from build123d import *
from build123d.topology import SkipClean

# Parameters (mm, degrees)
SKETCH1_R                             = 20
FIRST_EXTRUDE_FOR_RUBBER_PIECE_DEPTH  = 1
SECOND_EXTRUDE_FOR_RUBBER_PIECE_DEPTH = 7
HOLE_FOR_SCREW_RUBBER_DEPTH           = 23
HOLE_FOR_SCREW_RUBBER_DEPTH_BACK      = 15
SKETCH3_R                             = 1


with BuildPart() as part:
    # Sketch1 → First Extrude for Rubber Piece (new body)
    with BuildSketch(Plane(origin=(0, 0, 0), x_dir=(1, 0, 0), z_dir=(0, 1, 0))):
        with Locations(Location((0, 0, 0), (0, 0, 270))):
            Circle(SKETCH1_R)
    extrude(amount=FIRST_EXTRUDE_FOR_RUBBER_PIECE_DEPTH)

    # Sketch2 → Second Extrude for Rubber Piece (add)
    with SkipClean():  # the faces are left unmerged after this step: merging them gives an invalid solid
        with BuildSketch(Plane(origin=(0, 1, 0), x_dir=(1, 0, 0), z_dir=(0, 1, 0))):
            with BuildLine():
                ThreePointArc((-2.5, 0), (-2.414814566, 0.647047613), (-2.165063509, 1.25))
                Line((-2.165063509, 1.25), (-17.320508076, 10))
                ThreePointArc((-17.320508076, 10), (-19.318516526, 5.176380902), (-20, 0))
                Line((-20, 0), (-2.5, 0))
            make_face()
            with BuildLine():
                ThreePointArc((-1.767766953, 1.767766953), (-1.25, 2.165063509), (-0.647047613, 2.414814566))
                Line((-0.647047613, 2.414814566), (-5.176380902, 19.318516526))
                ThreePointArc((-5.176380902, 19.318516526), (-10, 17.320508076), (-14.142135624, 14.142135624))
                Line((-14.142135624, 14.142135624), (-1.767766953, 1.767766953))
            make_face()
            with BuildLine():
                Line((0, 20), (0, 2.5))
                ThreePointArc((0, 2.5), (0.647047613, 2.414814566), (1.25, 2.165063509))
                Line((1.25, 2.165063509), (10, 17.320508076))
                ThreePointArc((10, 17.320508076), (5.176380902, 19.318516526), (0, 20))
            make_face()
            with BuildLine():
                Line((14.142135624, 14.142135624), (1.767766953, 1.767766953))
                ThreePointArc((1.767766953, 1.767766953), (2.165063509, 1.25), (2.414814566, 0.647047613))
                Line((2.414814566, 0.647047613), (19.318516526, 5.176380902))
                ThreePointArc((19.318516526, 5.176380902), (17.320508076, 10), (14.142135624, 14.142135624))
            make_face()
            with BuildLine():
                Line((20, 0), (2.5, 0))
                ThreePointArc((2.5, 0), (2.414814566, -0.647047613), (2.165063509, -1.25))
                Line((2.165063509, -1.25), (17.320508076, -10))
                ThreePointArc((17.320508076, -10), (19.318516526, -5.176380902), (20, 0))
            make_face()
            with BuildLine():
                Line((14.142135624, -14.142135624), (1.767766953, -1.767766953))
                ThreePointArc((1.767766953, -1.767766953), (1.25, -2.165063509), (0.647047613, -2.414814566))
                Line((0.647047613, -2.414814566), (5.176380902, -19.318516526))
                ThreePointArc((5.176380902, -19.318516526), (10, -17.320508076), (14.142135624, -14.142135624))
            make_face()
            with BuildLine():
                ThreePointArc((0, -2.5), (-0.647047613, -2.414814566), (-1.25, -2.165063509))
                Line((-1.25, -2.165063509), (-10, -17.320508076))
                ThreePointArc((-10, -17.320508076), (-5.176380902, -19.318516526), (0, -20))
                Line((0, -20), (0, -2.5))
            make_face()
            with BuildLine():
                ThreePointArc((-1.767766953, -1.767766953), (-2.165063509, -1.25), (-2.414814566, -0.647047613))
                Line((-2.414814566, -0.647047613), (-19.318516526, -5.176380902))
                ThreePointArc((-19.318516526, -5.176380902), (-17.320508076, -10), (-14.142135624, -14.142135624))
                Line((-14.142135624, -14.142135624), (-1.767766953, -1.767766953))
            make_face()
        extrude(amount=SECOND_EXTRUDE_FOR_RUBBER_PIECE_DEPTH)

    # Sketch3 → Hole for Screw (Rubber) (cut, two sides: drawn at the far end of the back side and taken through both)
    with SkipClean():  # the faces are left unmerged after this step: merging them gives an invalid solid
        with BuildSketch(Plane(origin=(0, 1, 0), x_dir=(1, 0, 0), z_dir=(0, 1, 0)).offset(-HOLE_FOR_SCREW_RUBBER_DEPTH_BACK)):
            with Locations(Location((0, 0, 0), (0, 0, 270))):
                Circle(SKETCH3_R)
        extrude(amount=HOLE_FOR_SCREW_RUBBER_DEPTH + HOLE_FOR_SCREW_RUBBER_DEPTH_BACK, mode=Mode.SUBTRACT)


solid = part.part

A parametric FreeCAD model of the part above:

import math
import FreeCAD as App
import Part
import Sketcher
from FreeCAD import Vector
Q = App.Units.Quantity

doc = App.newDocument("Part")
body = doc.addObject("PartDesign::Body", "Body")

sketch1 = body.newObject("Sketcher::SketchObject", "Sketch")
sketch1.AttachmentSupport = (doc.getObject("XZ_Plane"), [""])
sketch1.MapMode = "FlatFace"
sketch1.addGeometry(Part.Circle(Vector(0, 0, 0), Vector(0, 0, 1), 20), False)
sketch1.addConstraint(Sketcher.Constraint("Coincident", 0, 3, -1, 1))
sketch1.addConstraint(Sketcher.Constraint("Diameter", 0, 40.0))
pad1 = body.newObject("PartDesign::Pad", "Pad")
pad1.Profile = sketch1
pad1.Length = 1
pad1.Reversed = True

sketch2 = body.newObject("Sketcher::SketchObject", "Sketch001")
sketch2.AttachmentSupport = (doc.getObject("XZ_Plane"), [""])
sketch2.MapMode = "FlatFace"
sketch2.AttachmentOffset = App.Placement(Vector(0, 0, -1), App.Rotation())
sketch2.addGeometry(Part.ArcOfCircle(Part.Circle(Vector(0, 0, 0), Vector(0, 0, 1), 2.5), math.radians(180), math.radians(210)), False)
sketch2.addGeometry(Part.LineSegment(Vector(-2.2, -1.2, 0), Vector(-17.3, -10, 0)), False)
sketch2.addGeometry(Part.ArcOfCircle(Part.Circle(Vector(0, 0, 0), Vector(0, 0, 1), 20), math.radians(180), math.radians(210)), False)
sketch2.addGeometry(Part.LineSegment(Vector(-20, 0, 0), Vector(-2.5, 0, 0)), False)
sketch2.addGeometry(Part.ArcOfCircle(Part.Circle(Vector(0, 0, 0), Vector(0, 0, 1), 2.5), math.radians(-135), math.radians(-105)), False)
sketch2.addGeometry(Part.LineSegment(Vector(-0.6, -2.4, 0), Vector(-5.2, -19.3, 0)), False)
sketch2.addGeometry(Part.ArcOfCircle(Part.Circle(Vector(0, 0, 0), Vector(0, 0, 1), 20), math.radians(-135), math.radians(-105)), False)
sketch2.addGeometry(Part.LineSegment(Vector(-14.1, -14.1, 0), Vector(-1.8, -1.8, 0)), False)
sketch2.addGeometry(Part.LineSegment(Vector(0, -20, 0), Vector(0, -2.5, 0)), False)
sketch2.addGeometry(Part.ArcOfCircle(Part.Circle(Vector(0, 0, 0), Vector(0, 0, 1), 2.5), math.radians(-90), math.radians(-60)), False)
sketch2.addGeometry(Part.LineSegment(Vector(1.2, -2.2, 0), Vector(10, -17.3, 0)), False)
sketch2.addGeometry(Part.ArcOfCircle(Part.Circle(Vector(0, 0, 0), Vector(0, 0, 1), 20), math.radians(-90), math.radians(-60)), False)
sketch2.addGeometry(Part.LineSegment(Vector(14.1, -14.1, 0), Vector(1.8, -1.8, 0)), False)
sketch2.addGeometry(Part.ArcOfCircle(Part.Circle(Vector(0, 0, 0), Vector(0, 0, 1), 2.5), math.radians(-45), math.radians(-15)), False)
sketch2.addGeometry(Part.LineSegment(Vector(2.4, -0.6, 0), Vector(19.3, -5.2, 0)), False)
sketch2.addGeometry(Part.ArcOfCircle(Part.Circle(Vector(0, 0, 0), Vector(0, 0, 1), 20), math.radians(-45), math.radians(-15)), False)
sketch2.addGeometry(Part.LineSegment(Vector(20, 0, 0), Vector(2.5, 0, 0)), False)
sketch2.addGeometry(Part.ArcOfCircle(Part.Circle(Vector(0, 0, 0), Vector(0, 0, 1), 2.5), math.radians(0), math.radians(30)), False)
sketch2.addGeometry(Part.LineSegment(Vector(2.2, 1.2, 0), Vector(17.3, 10, 0)), False)
sketch2.addGeometry(Part.ArcOfCircle(Part.Circle(Vector(0, 0, 0), Vector(0, 0, 1), 20), math.radians(0), math.radians(30)), False)
sketch2.addGeometry(Part.LineSegment(Vector(14.1, 14.1, 0), Vector(1.8, 1.8, 0)), False)
sketch2.addGeometry(Part.ArcOfCircle(Part.Circle(Vector(0, 0, 0), Vector(0, 0, 1), 2.5), math.radians(45), math.radians(75)), False)
sketch2.addGeometry(Part.LineSegment(Vector(0.6, 2.4, 0), Vector(5.2, 19.3, 0)), False)
sketch2.addGeometry(Part.ArcOfCircle(Part.Circle(Vector(0, 0, 0), Vector(0, 0, 1), 20), math.radians(45), math.radians(75)), False)
sketch2.addGeometry(Part.ArcOfCircle(Part.Circle(Vector(0, 0, 0), Vector(0, 0, 1), 2.5), math.radians(90), math.radians(120)), False)
sketch2.addGeometry(Part.LineSegment(Vector(-1.2, 2.2, 0), Vector(-10, 17.3, 0)), False)
sketch2.addGeometry(Part.ArcOfCircle(Part.Circle(Vector(0, 0, 0), Vector(0, 0, 1), 20), math.radians(90), math.radians(120)), False)
sketch2.addGeometry(Part.LineSegment(Vector(0, 20, 0), Vector(0, 2.5, 0)), False)
sketch2.addGeometry(Part.ArcOfCircle(Part.Circle(Vector(0, 0, 0), Vector(0, 0, 1), 2.5), math.radians(135), math.radians(165)), False)
sketch2.addGeometry(Part.LineSegment(Vector(-2.4, 0.6, 0), Vector(-19.3, 5.2, 0)), False)
sketch2.addGeometry(Part.ArcOfCircle(Part.Circle(Vector(0, 0, 0), Vector(0, 0, 1), 20), math.radians(135), math.radians(165)), False)
sketch2.addGeometry(Part.LineSegment(Vector(-14.1, 14.1, 0), Vector(-1.8, 1.8, 0)), False)
sketch2.addConstraint(Sketcher.Constraint("Coincident", 0, 2, 1, 1))
sketch2.addConstraint(Sketcher.Constraint("Coincident", 1, 2, 2, 2))
sketch2.addConstraint(Sketcher.Constraint("Coincident", 2, 1, 3, 1))
sketch2.addConstraint(Sketcher.Constraint("Coincident", 3, 2, 0, 1))
sketch2.addConstraint(Sketcher.Constraint("Coincident", 4, 2, 5, 1))
sketch2.addConstraint(Sketcher.Constraint("Coincident", 5, 2, 6, 2))
sketch2.addConstraint(Sketcher.Constraint("Coincident", 6, 1, 7, 1))
sketch2.addConstraint(Sketcher.Constraint("Coincident", 7, 2, 4, 1))
sketch2.addConstraint(Sketcher.Constraint("Coincident", 8, 2, 9, 1))
sketch2.addConstraint(Sketcher.Constraint("Coincident", 9, 2, 10, 1))
sketch2.addConstraint(Sketcher.Constraint("Coincident", 10, 2, 11, 2))
sketch2.addConstraint(Sketcher.Constraint("Coincident", 11, 1, 8, 1))
sketch2.addConstraint(Sketcher.Constraint("Coincident", 12, 2, 13, 1))
sketch2.addConstraint(Sketcher.Constraint("Coincident", 13, 2, 14, 1))
sketch2.addConstraint(Sketcher.Constraint("Coincident", 14, 2, 15, 2))
sketch2.addConstraint(Sketcher.Constraint("Coincident", 15, 1, 12, 1))
sketch2.addConstraint(Sketcher.Constraint("Coincident", 16, 2, 17, 1))
sketch2.addConstraint(Sketcher.Constraint("Coincident", 17, 2, 18, 1))
sketch2.addConstraint(Sketcher.Constraint("Coincident", 18, 2, 19, 2))
sketch2.addConstraint(Sketcher.Constraint("Coincident", 19, 1, 16, 1))
sketch2.addConstraint(Sketcher.Constraint("Coincident", 20, 2, 21, 1))
sketch2.addConstraint(Sketcher.Constraint("Coincident", 21, 2, 22, 1))
sketch2.addConstraint(Sketcher.Constraint("Coincident", 22, 2, 23, 2))
sketch2.addConstraint(Sketcher.Constraint("Coincident", 23, 1, 20, 1))
sketch2.addConstraint(Sketcher.Constraint("Coincident", 24, 2, 25, 1))
sketch2.addConstraint(Sketcher.Constraint("Coincident", 25, 2, 26, 2))
sketch2.addConstraint(Sketcher.Constraint("Coincident", 26, 1, 27, 1))
sketch2.addConstraint(Sketcher.Constraint("Coincident", 27, 2, 24, 1))
sketch2.addConstraint(Sketcher.Constraint("Coincident", 28, 2, 29, 1))
sketch2.addConstraint(Sketcher.Constraint("Coincident", 29, 2, 30, 2))
sketch2.addConstraint(Sketcher.Constraint("Coincident", 30, 1, 31, 1))
sketch2.addConstraint(Sketcher.Constraint("Coincident", 31, 2, 28, 1))
sketch2.addConstraint(Sketcher.Constraint("Horizontal", 3))
sketch2.addConstraint(Sketcher.Constraint("Vertical", 8))
sketch2.addConstraint(Sketcher.Constraint("Horizontal", 16))
sketch2.addConstraint(Sketcher.Constraint("Vertical", 27))
sketch2.addConstraint(Sketcher.Constraint("Coincident", 0, 3, -1, 1))
sketch2.addConstraint(Sketcher.Constraint("Coincident", 2, 3, -1, 1))
sketch2.addConstraint(Sketcher.Constraint("Coincident", 4, 3, -1, 1))
sketch2.addConstraint(Sketcher.Constraint("Coincident", 6, 3, -1, 1))
sketch2.addConstraint(Sketcher.Constraint("Coincident", 9, 3, -1, 1))
sketch2.addConstraint(Sketcher.Constraint("Coincident", 11, 3, -1, 1))
sketch2.addConstraint(Sketcher.Constraint("Coincident", 13, 3, -1, 1))
sketch2.addConstraint(Sketcher.Constraint("Coincident", 15, 3, -1, 1))
sketch2.addConstraint(Sketcher.Constraint("Coincident", 17, 3, -1, 1))
sketch2.addConstraint(Sketcher.Constraint("Coincident", 19, 3, -1, 1))
sketch2.addConstraint(Sketcher.Constraint("Coincident", 21, 3, -1, 1))
sketch2.addConstraint(Sketcher.Constraint("Coincident", 23, 3, -1, 1))
sketch2.addConstraint(Sketcher.Constraint("Coincident", 24, 3, -1, 1))
sketch2.addConstraint(Sketcher.Constraint("Coincident", 26, 3, -1, 1))
sketch2.addConstraint(Sketcher.Constraint("Coincident", 28, 3, -1, 1))
sketch2.addConstraint(Sketcher.Constraint("Coincident", 30, 3, -1, 1))
sketch2.addConstraint(Sketcher.Constraint("Equal", 0, 4))
sketch2.addConstraint(Sketcher.Constraint("Equal", 2, 6))
sketch2.addConstraint(Sketcher.Constraint("Equal", 4, 9))
sketch2.addConstraint(Sketcher.Constraint("Equal", 6, 11))
sketch2.addConstraint(Sketcher.Constraint("Equal", 9, 13))
sketch2.addConstraint(Sketcher.Constraint("Equal", 11, 15))
sketch2.addConstraint(Sketcher.Constraint("Equal", 13, 17))
sketch2.addConstraint(Sketcher.Constraint("Equal", 15, 19))
sketch2.addConstraint(Sketcher.Constraint("Equal", 17, 21))
sketch2.addConstraint(Sketcher.Constraint("Equal", 19, 23))
sketch2.addConstraint(Sketcher.Constraint("Equal", 21, 24))
sketch2.addConstraint(Sketcher.Constraint("Equal", 23, 26))
sketch2.addConstraint(Sketcher.Constraint("Equal", 24, 28))
sketch2.addConstraint(Sketcher.Constraint("Equal", 26, 30))
sketch2.addConstraint(Sketcher.Constraint("PointOnObject", 2, 1, -1))
sketch2.addConstraint(Sketcher.Constraint("PointOnObject", 8, 2, -2))
sketch2.addConstraint(Sketcher.Constraint("PointOnObject", 16, 2, -1))
sketch2.addConstraint(Sketcher.Constraint("PointOnObject", 26, 1, -2))
sketch2.addConstraint(Sketcher.Constraint("Perpendicular", 1, 10))
sketch2.addConstraint(Sketcher.Constraint("Perpendicular", 7, 12))
sketch2.addConstraint(Sketcher.Constraint("Perpendicular", 5, 14))
sketch2.addConstraint(Sketcher.Constraint("Perpendicular", 10, 18))
sketch2.addConstraint(Sketcher.Constraint("Perpendicular", 12, 20))
sketch2.addConstraint(Sketcher.Constraint("Perpendicular", 14, 22))
sketch2.addConstraint(Sketcher.Constraint("Perpendicular", 18, 25))
sketch2.addConstraint(Sketcher.Constraint("Perpendicular", 22, 29))
sketch2.addConstraint(Sketcher.Constraint("Perpendicular", 20, 31))
sketch2.addConstraint(Sketcher.Constraint("Horizontal", 7, 2, 12, 2))
sketch2.addConstraint(Sketcher.Constraint("Horizontal", 6, 1, 15, 1))
sketch2.addConstraint(Sketcher.Constraint("Horizontal", 23, 1, 30, 1))
sketch2.addConstraint(Sketcher.Constraint("Vertical", 12, 2, 20, 2))
sketch2.addConstraint(Sketcher.Constraint("Radius", 2, 20.0))
sketch2.addConstraint(Sketcher.Constraint("Radius", 0, 2.5))
sketch2.addConstraint(Sketcher.Constraint("Angle", 1, Q("-150 deg")))
sketch2.addConstraint(Sketcher.Constraint("Angle", 5, Q("-105 deg")))
sketch2.addConstraint(Sketcher.Constraint("DistanceY", 1, 2, -1, 1, 10.0))
sketch2.addConstraint(Sketcher.Constraint("DistanceX", -1, 1, 10, 2, 10.0))
sketch2.addConstraint(Sketcher.Constraint("DistanceY", -1, 1, 18, 2, 10.0))
sketch2.addConstraint(Sketcher.Constraint("DistanceX", 25, 2, -1, 1, 10.0))
sketch2.addConstraint(Sketcher.Constraint("DistanceX", 5, 2, -1, 1, 5.176381))
sketch2.addConstraint(Sketcher.Constraint("DistanceY", 14, 2, -1, 1, 5.176381))
sketch2.addConstraint(Sketcher.Constraint("DistanceX", -1, 1, 22, 2, 5.176381))
sketch2.addConstraint(Sketcher.Constraint("DistanceY", -1, 1, 29, 2, 5.176381))
sketch2.addConstraint(Sketcher.Constraint("DistanceY", 5, 2, 6, 1, 5.176381))
pad2 = body.newObject("PartDesign::Pad", "Pad001")
pad2.Profile = sketch2
pad2.Length = 7
pad2.Reversed = True

sketch3 = body.newObject("Sketcher::SketchObject", "Sketch002")
sketch3.AttachmentSupport = (doc.getObject("XZ_Plane"), [""])
sketch3.MapMode = "FlatFace"
sketch3.AttachmentOffset = App.Placement(Vector(0, 0, -1), App.Rotation())
sketch3.addGeometry(Part.Circle(Vector(0, 0, 0), Vector(0, 0, 1), 1), False)
sketch3.addConstraint(Sketcher.Constraint("Coincident", 0, 3, -1, 1))
sketch3.addConstraint(Sketcher.Constraint("Diameter", 0, 2.0))
pocket1 = body.newObject("PartDesign::Pocket", "Pocket")
pocket1.Profile = sketch3
pocket1.Type = "ThroughAll"
pocket1.Midplane = True

doc.recompute()
